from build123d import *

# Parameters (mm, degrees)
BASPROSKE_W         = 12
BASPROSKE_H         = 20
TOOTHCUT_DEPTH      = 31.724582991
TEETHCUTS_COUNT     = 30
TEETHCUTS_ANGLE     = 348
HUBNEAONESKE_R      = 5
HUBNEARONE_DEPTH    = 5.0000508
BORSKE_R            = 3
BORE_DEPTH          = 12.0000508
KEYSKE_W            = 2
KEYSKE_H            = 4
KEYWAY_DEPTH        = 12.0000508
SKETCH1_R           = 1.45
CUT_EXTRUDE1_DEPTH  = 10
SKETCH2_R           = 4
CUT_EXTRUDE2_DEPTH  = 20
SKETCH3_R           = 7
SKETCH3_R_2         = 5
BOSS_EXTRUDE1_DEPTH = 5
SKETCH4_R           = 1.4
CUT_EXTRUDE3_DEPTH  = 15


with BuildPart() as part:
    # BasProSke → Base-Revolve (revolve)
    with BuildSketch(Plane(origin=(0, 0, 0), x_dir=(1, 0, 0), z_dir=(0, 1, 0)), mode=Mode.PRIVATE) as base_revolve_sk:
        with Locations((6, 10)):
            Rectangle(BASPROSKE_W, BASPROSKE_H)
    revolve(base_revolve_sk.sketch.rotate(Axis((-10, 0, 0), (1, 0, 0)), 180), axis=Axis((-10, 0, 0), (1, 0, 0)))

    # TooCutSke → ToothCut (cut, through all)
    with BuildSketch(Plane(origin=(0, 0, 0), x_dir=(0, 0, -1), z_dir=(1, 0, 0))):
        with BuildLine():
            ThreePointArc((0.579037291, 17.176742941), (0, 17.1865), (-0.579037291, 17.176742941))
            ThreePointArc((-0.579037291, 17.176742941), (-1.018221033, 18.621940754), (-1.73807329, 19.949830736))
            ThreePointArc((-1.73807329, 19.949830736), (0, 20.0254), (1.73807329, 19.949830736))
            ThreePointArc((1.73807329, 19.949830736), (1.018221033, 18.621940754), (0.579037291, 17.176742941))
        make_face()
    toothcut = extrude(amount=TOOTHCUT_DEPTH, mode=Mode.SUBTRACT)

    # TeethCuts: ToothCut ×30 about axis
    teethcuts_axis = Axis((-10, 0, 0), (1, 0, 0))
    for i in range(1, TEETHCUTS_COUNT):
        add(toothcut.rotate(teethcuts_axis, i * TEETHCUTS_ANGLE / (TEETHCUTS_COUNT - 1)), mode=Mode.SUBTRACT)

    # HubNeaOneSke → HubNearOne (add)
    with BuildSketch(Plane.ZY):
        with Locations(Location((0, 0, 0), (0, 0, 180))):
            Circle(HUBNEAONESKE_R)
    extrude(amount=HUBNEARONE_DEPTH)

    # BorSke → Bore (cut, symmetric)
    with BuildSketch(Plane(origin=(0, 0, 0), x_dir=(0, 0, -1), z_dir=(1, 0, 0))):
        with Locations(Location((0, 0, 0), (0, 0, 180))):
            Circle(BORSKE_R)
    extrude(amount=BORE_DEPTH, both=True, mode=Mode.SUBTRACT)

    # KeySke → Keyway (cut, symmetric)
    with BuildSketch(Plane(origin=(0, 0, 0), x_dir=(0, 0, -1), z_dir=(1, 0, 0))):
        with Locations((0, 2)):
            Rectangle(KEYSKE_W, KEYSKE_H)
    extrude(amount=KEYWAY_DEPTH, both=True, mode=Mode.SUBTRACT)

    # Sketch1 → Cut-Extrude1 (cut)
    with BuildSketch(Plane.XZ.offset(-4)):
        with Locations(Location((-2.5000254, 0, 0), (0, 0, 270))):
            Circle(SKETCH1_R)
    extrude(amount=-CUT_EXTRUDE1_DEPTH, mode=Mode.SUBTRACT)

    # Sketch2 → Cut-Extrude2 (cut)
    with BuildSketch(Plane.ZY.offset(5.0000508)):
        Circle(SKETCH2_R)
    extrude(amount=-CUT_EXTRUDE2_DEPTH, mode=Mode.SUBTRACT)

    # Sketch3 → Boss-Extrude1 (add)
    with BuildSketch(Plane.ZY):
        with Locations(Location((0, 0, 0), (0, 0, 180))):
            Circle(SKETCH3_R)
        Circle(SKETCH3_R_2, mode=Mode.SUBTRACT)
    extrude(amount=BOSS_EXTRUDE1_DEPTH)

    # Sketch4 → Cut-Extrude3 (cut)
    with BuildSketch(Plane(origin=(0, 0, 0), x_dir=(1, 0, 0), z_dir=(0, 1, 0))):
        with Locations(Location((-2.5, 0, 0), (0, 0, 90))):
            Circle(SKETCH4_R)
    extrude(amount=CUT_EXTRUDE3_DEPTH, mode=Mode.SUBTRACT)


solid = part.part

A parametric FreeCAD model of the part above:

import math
import FreeCAD as App
import Part
import Sketcher
Q = App.Units.Quantity

doc = App.newDocument("Part")
body = doc.addObject("PartDesign::Body", "Body")

# Sketch on XZ plane
sketch1 = body.newObject("Sketcher::SketchObject", "Sketch")
sketch1.AttachmentSupport = (doc.getObject("XZ_Plane"), [""])
sketch1.MapMode = "FlatFace"
sketch1.addGeometry([
    Part.LineSegment(App.Vector(0, -20, 0), App.Vector(0, 0, 0)),
    Part.LineSegment(App.Vector(0, 0, 0), App.Vector(12, 0, 0)),
    Part.LineSegment(App.Vector(12, 0, 0), App.Vector(12, -20, 0)),
    Part.LineSegment(App.Vector(12, -20, 0), App.Vector(0, -20, 0)),
], False)
sketch1.addConstraint([
    Sketcher.Constraint("Coincident", 0, 2, 1, 1),
    Sketcher.Constraint("Coincident", 1, 2, 2, 1),
    Sketcher.Constraint("Coincident", 2, 2, 3, 1),
    Sketcher.Constraint("Coincident", 3, 2, 0, 1),
    Sketcher.Constraint("Vertical", 0),
    Sketcher.Constraint("Horizontal", 1),
    Sketcher.Constraint("Vertical", 2),
    Sketcher.Constraint("Horizontal", 3),
    Sketcher.Constraint("Coincident", 0, 2, -1, 1),
    Sketcher.Constraint("DistanceX", 1, 1, 1, 2, Q("12 mm")),
    Sketcher.Constraint("DistanceY", 0, 1, 0, 2, Q("20 mm")),
])
revolution = body.newObject("PartDesign::Revolution", "Revolution")
revolution.Profile = sketch1
revolution.ReferenceAxis = (sketch1, ["H_Axis"])
revolution.Angle = 360

# Sketch on YZ plane
sketch2 = body.newObject("Sketcher::SketchObject", "Sketch001")
sketch2.AttachmentSupport = (doc.getObject("YZ_Plane"), [""])
sketch2.MapMode = "FlatFace"
sketch2.addGeometry([
    Part.ArcOfCircle(Part.Circle(App.Vector(0, 0, 0), App.Vector(0, 0, 1), 17.2), math.radians(-1.93), math.radians(1.93)),
    Part.ArcOfCircle(Part.Circle(App.Vector(15.7, -7.9, 0), App.Vector(0, 0, 1), 7.5), math.radians(56), math.radians(79)),
    Part.ArcOfCircle(Part.Circle(App.Vector(0, 0, 0), App.Vector(0, 0, 1), 20), math.radians(-4.98), math.radians(4.98)),
    Part.ArcOfCircle(Part.Circle(App.Vector(15.7, 7.9, 0), App.Vector(0, 0, 1), 7.5), math.radians(-79), math.radians(-56)),
], False)
sketch2.addConstraint([
    Sketcher.Constraint("Coincident", 0, 1, 1, 2),
    Sketcher.Constraint("Coincident", 1, 1, 2, 1),
    Sketcher.Constraint("Coincident", 2, 2, 3, 2),
    Sketcher.Constraint("Coincident", 3, 1, 0, 2),
    Sketcher.Constraint("Coincident", 0, 3, -1, 1),
    Sketcher.Constraint("Coincident", 2, 3, -1, 1),
    Sketcher.Constraint("Equal", 1, 3),
    Sketcher.Constraint("Symmetric", 1, 3, 3, 3, -1),
    Sketcher.Constraint("Radius", 1, Q("7.5 mm")),
    Sketcher.Constraint("Radius", 0, Q("17.1865 mm")),
    Sketcher.Constraint("Radius", 2, Q("20.0254 mm")),
    Sketcher.Constraint("DistanceX", -1, 1, 1, 3, Q("15.729709 mm")),
    Sketcher.Constraint("DistanceY", 1, 3, -1, 1, Q("7.93812 mm")),
])
pocket1 = body.newObject("PartDesign::Pocket", "Pocket")
pocket1.Profile = sketch2
pocket1.Type = "ThroughAll"
pocket1.Reversed = True
doc.recompute()

polarpattern = body.newObject("PartDesign::PolarPattern", "PolarPattern")
polarpattern.Originals = [pocket1]
polarpattern.Axis = (doc.getObject("X_Axis"), [""])
polarpattern.Angle = 360
polarpattern.Occurrences = 30
body.Tip = polarpattern

# Sketch on YZ plane
sketch3 = body.newObject("Sketcher::SketchObject", "Sketch002")
sketch3.AttachmentSupport = (doc.getObject("YZ_Plane"), [""])
sketch3.MapMode = "FlatFace"
sketch3.addGeometry(Part.Circle(App.Vector(0, 0, 0), App.Vector(0, 0, 1), 5), False)
sketch3.addConstraint([
    Sketcher.Constraint("Coincident", 0, 3, -1, 1),
    Sketcher.Constraint("Diameter", 0, Q("10 mm")),
])
pad1 = body.newObject("PartDesign::Pad", "Pad")
pad1.Profile = sketch3
pad1.Length = 5.000051
pad1.Reversed = True

# Sketch on YZ plane
sketch4 = body.newObject("Sketcher::SketchObject", "Sketch003")
sketch4.AttachmentSupport = (doc.getObject("YZ_Plane"), [""])
sketch4.MapMode = "FlatFace"
sketch4.addGeometry(Part.Circle(App.Vector(0, 0, 0), App.Vector(0, 0, 1), 3), False)
sketch4.addConstraint([
    Sketcher.Constraint("Coincident", 0, 3, -1, 1),
    Sketcher.Constraint("Diameter", 0, Q("6 mm")),
])
pocket2 = body.newObject("PartDesign::Pocket", "Pocket001")
pocket2.Profile = sketch4
pocket2.Length = 24.000102
pocket2.Midplane = True

# Sketch on YZ plane
sketch5 = body.newObject("Sketcher::SketchObject", "Sketch004")
sketch5.AttachmentSupport = (doc.getObject("YZ_Plane"), [""])
sketch5.MapMode = "FlatFace"
sketch5.addGeometry([
    Part.LineSegment(App.Vector(4, 1, 0), App.Vector(0, 1, 0)),
    Part.LineSegment(App.Vector(0, 1, 0), App.Vector(0, -1, 0)),
    Part.LineSegment(App.Vector(0, -1, 0), App.Vector(4, -1, 0)),
    Part.LineSegment(App.Vector(4, -1, 0), App.Vector(4, 1, 0)),
], False)
sketch5.addConstraint([
    Sketcher.Constraint("Coincident", 0, 2, 1, 1),
    Sketcher.Constraint("Coincident", 1, 2, 2, 1),
    Sketcher.Constraint("Coincident", 2, 2, 3, 1),
    Sketcher.Constraint("Coincident", 3, 2, 0, 1),
    Sketcher.Constraint("Horizontal", 0),
    Sketcher.Constraint("Vertical", 1),
    Sketcher.Constraint("Horizontal", 2),
    Sketcher.Constraint("Vertical", 3),
    Sketcher.Constraint("Symmetric", 0, 2, 1, 2, -1, 1),
    Sketcher.Constraint("DistanceX", 0, 2, 0, 1, Q("4 mm")),
    Sketcher.Constraint("DistanceY", 1, 2, 1, 1, Q("2 mm")),
])
pocket3 = body.newObject("PartDesign::Pocket", "Pocket002")
pocket3.Profile = sketch5
pocket3.Length = 24.000102
pocket3.Midplane = True

# Sketch on XZ plane
sketch6 = body.newObject("Sketcher::SketchObject", "Sketch005")
sketch6.AttachmentSupport = (doc.getObject("XZ_Plane"), [""])
sketch6.MapMode = "FlatFace"
sketch6.AttachmentOffset = App.Placement(App.Vector(0, 0, -4), App.Rotation())
sketch6.addGeometry(Part.Circle(App.Vector(-2.5, 0, 0), App.Vector(0, 0, 1), 1.4), False)
sketch6.addConstraint([
    Sketcher.Constraint("PointOnObject", 0, 3, -1),
    Sketcher.Constraint("Diameter", 0, Q("2.9 mm")),
    Sketcher.Constraint("DistanceX", 0, 3, -1, 1, Q("2.500025 mm")),
])
pocket4 = body.newObject("PartDesign::Pocket", "Pocket003")
pocket4.Profile = sketch6
pocket4.Length = 10

# Sketch on YZ plane
sketch7 = body.newObject("Sketcher::SketchObject", "Sketch006")
sketch7.AttachmentSupport = (doc.getObject("YZ_Plane"), [""])
sketch7.MapMode = "FlatFace"
sketch7.AttachmentOffset = App.Placement(App.Vector(0, 0, -5.000051), App.Rotation())
sketch7.addGeometry(Part.Circle(App.Vector(0, 0, 0), App.Vector(0, 0, 1), 4), False)
sketch7.addConstraint([
    Sketcher.Constraint("Coincident", 0, 3, -1, 1),
    Sketcher.Constraint("Diameter", 0, Q("8 mm")),
])
pocket5 = body.newObject("PartDesign::Pocket", "Pocket004")
pocket5.Profile = sketch7
pocket5.Length = 20
pocket5.Reversed = True

# Sketch on YZ plane
sketch8 = body.newObject("Sketcher::SketchObject", "Sketch007")
sketch8.AttachmentSupport = (doc.getObject("YZ_Plane"), [""])
sketch8.MapMode = "FlatFace"
sketch8.addGeometry([
    Part.Circle(App.Vector(0, 0, 0), App.Vector(0, 0, 1), 7),
    Part.Circle(App.Vector(0, 0, 0), App.Vector(0, 0, 1), 5),
], False)
sketch8.addConstraint([
    Sketcher.Constraint("Coincident", 0, 3, -1, 1),
    Sketcher.Constraint("Coincident", 1, 3, -1, 1),
    Sketcher.Constraint("Diameter", 0, Q("14 mm")),
    Sketcher.Constraint("Diameter", 1, Q("10 mm")),
])
pad2 = body.newObject("PartDesign::Pad", "Pad001")
pad2.Profile = sketch8
pad2.Length = 5
pad2.Reversed = True

# Sketch on XZ plane
sketch9 = body.newObject("Sketcher::SketchObject", "Sketch008")
sketch9.AttachmentSupport = (doc.getObject("XZ_Plane"), [""])
sketch9.MapMode = "FlatFace"
sketch9.addGeometry(Part.Circle(App.Vector(-2.5, 0, 0), App.Vector(0, 0, 1), 1.4), False)
sketch9.addConstraint([
    Sketcher.Constraint("PointOnObject", 0, 3, -1),
    Sketcher.Constraint("Diameter", 0, Q("2.8 mm")),
    Sketcher.Constraint("DistanceX", 0, 3, -1, 1, Q("2.5 mm")),
])
pocket6 = body.newObject("PartDesign::Pocket", "Pocket005")
pocket6.Profile = sketch9
pocket6.Length = 15

doc.recompute()
